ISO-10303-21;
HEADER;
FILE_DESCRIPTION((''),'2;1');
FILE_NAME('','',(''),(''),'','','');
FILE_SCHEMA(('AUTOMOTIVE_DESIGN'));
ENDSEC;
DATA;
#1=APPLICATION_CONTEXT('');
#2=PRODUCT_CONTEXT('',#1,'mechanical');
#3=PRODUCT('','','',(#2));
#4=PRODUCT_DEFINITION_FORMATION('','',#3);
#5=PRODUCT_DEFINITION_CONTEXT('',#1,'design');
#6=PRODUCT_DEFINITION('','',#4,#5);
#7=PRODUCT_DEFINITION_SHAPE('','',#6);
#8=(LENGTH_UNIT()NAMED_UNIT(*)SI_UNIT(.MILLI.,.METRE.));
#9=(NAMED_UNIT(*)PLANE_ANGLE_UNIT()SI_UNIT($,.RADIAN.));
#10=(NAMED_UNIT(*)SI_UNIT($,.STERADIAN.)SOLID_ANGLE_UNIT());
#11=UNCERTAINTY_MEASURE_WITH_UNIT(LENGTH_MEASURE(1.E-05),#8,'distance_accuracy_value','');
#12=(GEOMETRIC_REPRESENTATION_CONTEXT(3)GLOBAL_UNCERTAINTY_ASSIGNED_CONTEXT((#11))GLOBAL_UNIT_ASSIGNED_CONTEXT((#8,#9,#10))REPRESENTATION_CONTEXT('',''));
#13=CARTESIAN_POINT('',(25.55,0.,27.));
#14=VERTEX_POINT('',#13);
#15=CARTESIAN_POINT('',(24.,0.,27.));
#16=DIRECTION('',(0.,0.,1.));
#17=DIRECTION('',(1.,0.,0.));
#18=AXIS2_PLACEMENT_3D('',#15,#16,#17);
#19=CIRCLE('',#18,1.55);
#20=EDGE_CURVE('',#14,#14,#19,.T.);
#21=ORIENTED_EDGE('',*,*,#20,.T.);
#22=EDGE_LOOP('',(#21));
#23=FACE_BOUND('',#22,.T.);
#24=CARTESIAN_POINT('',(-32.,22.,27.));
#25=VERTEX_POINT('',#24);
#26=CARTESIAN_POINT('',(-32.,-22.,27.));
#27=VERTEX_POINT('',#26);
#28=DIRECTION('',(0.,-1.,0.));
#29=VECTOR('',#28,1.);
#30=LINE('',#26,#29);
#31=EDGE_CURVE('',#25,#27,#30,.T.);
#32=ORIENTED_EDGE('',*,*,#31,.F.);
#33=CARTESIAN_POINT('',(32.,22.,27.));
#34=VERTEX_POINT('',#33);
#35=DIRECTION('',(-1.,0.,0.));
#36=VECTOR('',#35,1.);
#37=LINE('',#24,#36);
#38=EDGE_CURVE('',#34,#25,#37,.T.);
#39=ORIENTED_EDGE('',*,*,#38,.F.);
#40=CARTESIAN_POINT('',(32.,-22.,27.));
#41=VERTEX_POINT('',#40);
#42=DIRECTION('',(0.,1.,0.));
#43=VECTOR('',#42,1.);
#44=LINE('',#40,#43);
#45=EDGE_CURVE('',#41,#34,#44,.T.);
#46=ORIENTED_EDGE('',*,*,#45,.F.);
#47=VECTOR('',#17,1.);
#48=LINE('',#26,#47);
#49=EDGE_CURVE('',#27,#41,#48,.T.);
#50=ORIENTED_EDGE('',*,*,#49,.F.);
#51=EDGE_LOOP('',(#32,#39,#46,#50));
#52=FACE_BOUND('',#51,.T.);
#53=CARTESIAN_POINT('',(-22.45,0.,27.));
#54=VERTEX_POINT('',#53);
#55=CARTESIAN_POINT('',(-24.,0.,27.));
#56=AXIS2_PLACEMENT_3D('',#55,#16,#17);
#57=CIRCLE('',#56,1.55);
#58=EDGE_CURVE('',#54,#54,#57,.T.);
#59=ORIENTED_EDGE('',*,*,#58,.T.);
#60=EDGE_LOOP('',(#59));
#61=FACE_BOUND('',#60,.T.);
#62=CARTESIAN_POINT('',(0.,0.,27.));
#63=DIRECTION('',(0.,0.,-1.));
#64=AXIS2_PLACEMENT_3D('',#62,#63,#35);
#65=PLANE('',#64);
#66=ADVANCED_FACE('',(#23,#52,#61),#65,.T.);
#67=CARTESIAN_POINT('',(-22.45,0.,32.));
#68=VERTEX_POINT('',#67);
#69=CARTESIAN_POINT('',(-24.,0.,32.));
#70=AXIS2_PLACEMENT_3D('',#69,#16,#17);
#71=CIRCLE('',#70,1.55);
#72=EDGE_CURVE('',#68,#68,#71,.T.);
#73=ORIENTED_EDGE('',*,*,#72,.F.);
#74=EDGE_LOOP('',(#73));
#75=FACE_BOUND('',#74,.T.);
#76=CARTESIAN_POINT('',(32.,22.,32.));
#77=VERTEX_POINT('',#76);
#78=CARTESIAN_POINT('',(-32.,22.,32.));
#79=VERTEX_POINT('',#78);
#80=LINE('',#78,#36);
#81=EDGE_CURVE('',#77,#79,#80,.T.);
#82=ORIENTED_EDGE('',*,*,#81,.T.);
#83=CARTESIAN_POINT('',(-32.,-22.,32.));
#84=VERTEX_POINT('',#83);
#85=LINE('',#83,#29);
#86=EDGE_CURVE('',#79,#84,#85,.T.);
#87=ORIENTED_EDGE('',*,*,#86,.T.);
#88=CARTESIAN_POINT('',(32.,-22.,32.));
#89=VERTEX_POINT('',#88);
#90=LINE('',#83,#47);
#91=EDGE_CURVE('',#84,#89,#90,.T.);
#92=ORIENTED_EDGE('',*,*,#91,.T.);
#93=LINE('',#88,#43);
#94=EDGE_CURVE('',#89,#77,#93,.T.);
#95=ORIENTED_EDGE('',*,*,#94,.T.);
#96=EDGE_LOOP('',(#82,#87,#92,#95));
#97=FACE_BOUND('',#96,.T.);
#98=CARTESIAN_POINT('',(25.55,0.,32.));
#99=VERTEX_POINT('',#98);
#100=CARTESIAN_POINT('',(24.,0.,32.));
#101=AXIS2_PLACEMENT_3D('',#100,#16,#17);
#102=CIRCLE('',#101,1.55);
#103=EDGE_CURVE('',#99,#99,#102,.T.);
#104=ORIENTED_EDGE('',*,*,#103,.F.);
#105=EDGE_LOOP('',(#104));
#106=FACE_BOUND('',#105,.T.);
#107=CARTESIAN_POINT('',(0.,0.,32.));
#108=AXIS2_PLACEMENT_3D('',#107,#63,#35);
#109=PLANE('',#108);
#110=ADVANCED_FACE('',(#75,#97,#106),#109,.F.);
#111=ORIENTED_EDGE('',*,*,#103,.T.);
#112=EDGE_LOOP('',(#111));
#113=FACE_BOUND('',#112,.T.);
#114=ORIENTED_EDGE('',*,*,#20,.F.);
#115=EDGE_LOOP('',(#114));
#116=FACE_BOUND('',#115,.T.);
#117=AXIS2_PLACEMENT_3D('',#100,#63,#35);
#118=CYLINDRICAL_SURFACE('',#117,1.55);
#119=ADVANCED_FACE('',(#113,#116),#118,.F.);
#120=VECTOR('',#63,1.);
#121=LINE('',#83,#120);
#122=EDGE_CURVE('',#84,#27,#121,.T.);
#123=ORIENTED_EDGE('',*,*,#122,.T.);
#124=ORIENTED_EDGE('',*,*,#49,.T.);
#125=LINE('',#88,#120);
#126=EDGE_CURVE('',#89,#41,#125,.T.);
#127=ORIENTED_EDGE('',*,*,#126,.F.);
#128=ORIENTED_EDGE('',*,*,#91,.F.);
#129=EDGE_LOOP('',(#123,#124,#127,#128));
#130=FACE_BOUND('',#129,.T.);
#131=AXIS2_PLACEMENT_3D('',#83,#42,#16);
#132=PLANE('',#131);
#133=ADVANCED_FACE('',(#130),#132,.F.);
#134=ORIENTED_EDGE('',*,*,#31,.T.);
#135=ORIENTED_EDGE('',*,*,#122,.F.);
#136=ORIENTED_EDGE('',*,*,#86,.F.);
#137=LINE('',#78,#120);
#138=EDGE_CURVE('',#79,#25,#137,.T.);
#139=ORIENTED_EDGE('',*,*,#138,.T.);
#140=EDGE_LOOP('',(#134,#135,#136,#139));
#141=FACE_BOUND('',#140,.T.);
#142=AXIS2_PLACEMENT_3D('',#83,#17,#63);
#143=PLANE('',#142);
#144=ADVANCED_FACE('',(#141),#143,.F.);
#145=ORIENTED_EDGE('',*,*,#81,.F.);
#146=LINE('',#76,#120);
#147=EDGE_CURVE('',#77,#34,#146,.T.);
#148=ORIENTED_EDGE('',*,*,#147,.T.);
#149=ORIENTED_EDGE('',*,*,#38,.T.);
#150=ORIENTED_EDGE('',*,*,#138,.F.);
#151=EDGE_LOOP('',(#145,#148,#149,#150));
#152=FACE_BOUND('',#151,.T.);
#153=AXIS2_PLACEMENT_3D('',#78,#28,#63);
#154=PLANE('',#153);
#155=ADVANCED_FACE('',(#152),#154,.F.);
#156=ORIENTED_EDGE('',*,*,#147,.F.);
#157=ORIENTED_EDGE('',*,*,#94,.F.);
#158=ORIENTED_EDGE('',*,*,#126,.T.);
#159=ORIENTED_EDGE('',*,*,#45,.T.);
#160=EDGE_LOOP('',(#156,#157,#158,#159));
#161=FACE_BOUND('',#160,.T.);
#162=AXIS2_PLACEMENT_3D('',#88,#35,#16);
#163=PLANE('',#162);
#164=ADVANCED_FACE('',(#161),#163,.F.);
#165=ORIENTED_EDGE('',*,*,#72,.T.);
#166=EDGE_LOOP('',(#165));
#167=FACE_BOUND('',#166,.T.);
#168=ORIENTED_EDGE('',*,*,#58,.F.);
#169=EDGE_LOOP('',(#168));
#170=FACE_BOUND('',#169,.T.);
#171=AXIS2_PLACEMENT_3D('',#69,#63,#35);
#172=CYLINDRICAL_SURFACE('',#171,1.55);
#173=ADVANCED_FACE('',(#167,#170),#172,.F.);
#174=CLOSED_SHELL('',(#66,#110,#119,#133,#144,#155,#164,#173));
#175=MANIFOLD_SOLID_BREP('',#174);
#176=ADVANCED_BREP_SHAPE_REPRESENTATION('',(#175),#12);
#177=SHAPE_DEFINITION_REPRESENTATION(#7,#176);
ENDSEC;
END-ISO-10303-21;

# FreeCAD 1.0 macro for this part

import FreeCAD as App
import Part
import Sketcher
Q = App.Units.Quantity

doc = App.newDocument("Part")
params = doc.addObject("Spreadsheet::Sheet", "Params")
for row, (alias, value) in enumerate([
    ("sketch1_width", "64 mm"),
    ("sketch1_height", "44 mm"),
    ("pad1_length", "5 mm"),
    ("sketch2_diameter", "3.1 mm"),
    ("pocket1_length", "5 mm"),
], start=1):
    params.set(f"A{row}", alias)
    params.set(f"B{row}", "=" + value)
    params.setAlias(f"B{row}", alias)

body = doc.addObject("PartDesign::Body", "Body")

# Sketch on XY plane
sketch1 = body.newObject("Sketcher::SketchObject", "Sketch")
sketch1.AttachmentSupport = (doc.getObject("XY_Plane"), [""])
sketch1.MapMode = "FlatFace"
sketch1.AttachmentOffset = App.Placement(App.Vector(0, 0, 27), App.Rotation())
sketch1.addGeometry(Part.LineSegment(App.Vector(-32, 22, 0), App.Vector(-32, -22, 0)), False)
sketch1.addGeometry(Part.LineSegment(App.Vector(-32, -22, 0), App.Vector(32, -22, 0)), False)
sketch1.addGeometry(Part.LineSegment(App.Vector(32, -22, 0), App.Vector(32, 22, 0)), False)
sketch1.addGeometry(Part.LineSegment(App.Vector(32, 22, 0), App.Vector(-32, 22, 0)), False)
sketch1.addConstraint(Sketcher.Constraint("Coincident", 0, 2, 1, 1))
sketch1.addConstraint(Sketcher.Constraint("Coincident", 1, 2, 2, 1))
sketch1.addConstraint(Sketcher.Constraint("Coincident", 2, 2, 3, 1))
sketch1.addConstraint(Sketcher.Constraint("Coincident", 3, 2, 0, 1))
sketch1.addConstraint(Sketcher.Constraint("Vertical", 0))
sketch1.addConstraint(Sketcher.Constraint("Horizontal", 1))
sketch1.addConstraint(Sketcher.Constraint("Vertical", 2))
sketch1.addConstraint(Sketcher.Constraint("Horizontal", 3))
sketch1.addConstraint(Sketcher.Constraint("Symmetric", 0, 2, 2, 2, -1, 1))
sketch1.addConstraint(Sketcher.Constraint("DistanceX", 1, 1, 1, 2, Q("64 mm")))
sketch1.addConstraint(Sketcher.Constraint("DistanceY", 0, 2, 0, 1, Q("44 mm")))
sketch1.setExpression("Constraints[9]", "Params.sketch1_width")
sketch1.setExpression("Constraints[10]", "Params.sketch1_height")
pad1 = body.newObject("PartDesign::Pad", "Pad")
pad1.Profile = sketch1
pad1.setExpression("Length", "Params.pad1_length")

# Sketch on XY plane
sketch2 = body.newObject("Sketcher::SketchObject", "Sketch001")
sketch2.AttachmentSupport = (doc.getObject("XY_Plane"), [""])
sketch2.MapMode = "FlatFace"
sketch2.AttachmentOffset = App.Placement(App.Vector(0, 0, 27), App.Rotation())
sketch2.addGeometry(Part.Circle(App.Vector(-24, 0, 0), App.Vector(0, 0, 1), 1.6), False)
sketch2.addGeometry(Part.Circle(App.Vector(24, 0, 0), App.Vector(0, 0, 1), 1.6), False)
sketch2.addConstraint(Sketcher.Constraint("Equal", 0, 1))
sketch2.addConstraint(Sketcher.Constraint("Symmetric", 0, 3, 1, 3, -1, 1))
sketch2.addConstraint(Sketcher.Constraint("PointOnObject", 0, 3, -1))
sketch2.addConstraint(Sketcher.Constraint("Diameter", 0, Q("3.1 mm")))
sketch2.addConstraint(Sketcher.Constraint("DistanceX", 0, 3, -1, 1, Q("24 mm")))
sketch2.setExpression("Constraints[3]", "Params.sketch2_diameter")
pocket1 = body.newObject("PartDesign::Pocket", "Pocket")
pocket1.Profile = sketch2
pocket1.setExpression("Length", "Params.pocket1_length")
pocket1.Reversed = True

doc.recompute()
